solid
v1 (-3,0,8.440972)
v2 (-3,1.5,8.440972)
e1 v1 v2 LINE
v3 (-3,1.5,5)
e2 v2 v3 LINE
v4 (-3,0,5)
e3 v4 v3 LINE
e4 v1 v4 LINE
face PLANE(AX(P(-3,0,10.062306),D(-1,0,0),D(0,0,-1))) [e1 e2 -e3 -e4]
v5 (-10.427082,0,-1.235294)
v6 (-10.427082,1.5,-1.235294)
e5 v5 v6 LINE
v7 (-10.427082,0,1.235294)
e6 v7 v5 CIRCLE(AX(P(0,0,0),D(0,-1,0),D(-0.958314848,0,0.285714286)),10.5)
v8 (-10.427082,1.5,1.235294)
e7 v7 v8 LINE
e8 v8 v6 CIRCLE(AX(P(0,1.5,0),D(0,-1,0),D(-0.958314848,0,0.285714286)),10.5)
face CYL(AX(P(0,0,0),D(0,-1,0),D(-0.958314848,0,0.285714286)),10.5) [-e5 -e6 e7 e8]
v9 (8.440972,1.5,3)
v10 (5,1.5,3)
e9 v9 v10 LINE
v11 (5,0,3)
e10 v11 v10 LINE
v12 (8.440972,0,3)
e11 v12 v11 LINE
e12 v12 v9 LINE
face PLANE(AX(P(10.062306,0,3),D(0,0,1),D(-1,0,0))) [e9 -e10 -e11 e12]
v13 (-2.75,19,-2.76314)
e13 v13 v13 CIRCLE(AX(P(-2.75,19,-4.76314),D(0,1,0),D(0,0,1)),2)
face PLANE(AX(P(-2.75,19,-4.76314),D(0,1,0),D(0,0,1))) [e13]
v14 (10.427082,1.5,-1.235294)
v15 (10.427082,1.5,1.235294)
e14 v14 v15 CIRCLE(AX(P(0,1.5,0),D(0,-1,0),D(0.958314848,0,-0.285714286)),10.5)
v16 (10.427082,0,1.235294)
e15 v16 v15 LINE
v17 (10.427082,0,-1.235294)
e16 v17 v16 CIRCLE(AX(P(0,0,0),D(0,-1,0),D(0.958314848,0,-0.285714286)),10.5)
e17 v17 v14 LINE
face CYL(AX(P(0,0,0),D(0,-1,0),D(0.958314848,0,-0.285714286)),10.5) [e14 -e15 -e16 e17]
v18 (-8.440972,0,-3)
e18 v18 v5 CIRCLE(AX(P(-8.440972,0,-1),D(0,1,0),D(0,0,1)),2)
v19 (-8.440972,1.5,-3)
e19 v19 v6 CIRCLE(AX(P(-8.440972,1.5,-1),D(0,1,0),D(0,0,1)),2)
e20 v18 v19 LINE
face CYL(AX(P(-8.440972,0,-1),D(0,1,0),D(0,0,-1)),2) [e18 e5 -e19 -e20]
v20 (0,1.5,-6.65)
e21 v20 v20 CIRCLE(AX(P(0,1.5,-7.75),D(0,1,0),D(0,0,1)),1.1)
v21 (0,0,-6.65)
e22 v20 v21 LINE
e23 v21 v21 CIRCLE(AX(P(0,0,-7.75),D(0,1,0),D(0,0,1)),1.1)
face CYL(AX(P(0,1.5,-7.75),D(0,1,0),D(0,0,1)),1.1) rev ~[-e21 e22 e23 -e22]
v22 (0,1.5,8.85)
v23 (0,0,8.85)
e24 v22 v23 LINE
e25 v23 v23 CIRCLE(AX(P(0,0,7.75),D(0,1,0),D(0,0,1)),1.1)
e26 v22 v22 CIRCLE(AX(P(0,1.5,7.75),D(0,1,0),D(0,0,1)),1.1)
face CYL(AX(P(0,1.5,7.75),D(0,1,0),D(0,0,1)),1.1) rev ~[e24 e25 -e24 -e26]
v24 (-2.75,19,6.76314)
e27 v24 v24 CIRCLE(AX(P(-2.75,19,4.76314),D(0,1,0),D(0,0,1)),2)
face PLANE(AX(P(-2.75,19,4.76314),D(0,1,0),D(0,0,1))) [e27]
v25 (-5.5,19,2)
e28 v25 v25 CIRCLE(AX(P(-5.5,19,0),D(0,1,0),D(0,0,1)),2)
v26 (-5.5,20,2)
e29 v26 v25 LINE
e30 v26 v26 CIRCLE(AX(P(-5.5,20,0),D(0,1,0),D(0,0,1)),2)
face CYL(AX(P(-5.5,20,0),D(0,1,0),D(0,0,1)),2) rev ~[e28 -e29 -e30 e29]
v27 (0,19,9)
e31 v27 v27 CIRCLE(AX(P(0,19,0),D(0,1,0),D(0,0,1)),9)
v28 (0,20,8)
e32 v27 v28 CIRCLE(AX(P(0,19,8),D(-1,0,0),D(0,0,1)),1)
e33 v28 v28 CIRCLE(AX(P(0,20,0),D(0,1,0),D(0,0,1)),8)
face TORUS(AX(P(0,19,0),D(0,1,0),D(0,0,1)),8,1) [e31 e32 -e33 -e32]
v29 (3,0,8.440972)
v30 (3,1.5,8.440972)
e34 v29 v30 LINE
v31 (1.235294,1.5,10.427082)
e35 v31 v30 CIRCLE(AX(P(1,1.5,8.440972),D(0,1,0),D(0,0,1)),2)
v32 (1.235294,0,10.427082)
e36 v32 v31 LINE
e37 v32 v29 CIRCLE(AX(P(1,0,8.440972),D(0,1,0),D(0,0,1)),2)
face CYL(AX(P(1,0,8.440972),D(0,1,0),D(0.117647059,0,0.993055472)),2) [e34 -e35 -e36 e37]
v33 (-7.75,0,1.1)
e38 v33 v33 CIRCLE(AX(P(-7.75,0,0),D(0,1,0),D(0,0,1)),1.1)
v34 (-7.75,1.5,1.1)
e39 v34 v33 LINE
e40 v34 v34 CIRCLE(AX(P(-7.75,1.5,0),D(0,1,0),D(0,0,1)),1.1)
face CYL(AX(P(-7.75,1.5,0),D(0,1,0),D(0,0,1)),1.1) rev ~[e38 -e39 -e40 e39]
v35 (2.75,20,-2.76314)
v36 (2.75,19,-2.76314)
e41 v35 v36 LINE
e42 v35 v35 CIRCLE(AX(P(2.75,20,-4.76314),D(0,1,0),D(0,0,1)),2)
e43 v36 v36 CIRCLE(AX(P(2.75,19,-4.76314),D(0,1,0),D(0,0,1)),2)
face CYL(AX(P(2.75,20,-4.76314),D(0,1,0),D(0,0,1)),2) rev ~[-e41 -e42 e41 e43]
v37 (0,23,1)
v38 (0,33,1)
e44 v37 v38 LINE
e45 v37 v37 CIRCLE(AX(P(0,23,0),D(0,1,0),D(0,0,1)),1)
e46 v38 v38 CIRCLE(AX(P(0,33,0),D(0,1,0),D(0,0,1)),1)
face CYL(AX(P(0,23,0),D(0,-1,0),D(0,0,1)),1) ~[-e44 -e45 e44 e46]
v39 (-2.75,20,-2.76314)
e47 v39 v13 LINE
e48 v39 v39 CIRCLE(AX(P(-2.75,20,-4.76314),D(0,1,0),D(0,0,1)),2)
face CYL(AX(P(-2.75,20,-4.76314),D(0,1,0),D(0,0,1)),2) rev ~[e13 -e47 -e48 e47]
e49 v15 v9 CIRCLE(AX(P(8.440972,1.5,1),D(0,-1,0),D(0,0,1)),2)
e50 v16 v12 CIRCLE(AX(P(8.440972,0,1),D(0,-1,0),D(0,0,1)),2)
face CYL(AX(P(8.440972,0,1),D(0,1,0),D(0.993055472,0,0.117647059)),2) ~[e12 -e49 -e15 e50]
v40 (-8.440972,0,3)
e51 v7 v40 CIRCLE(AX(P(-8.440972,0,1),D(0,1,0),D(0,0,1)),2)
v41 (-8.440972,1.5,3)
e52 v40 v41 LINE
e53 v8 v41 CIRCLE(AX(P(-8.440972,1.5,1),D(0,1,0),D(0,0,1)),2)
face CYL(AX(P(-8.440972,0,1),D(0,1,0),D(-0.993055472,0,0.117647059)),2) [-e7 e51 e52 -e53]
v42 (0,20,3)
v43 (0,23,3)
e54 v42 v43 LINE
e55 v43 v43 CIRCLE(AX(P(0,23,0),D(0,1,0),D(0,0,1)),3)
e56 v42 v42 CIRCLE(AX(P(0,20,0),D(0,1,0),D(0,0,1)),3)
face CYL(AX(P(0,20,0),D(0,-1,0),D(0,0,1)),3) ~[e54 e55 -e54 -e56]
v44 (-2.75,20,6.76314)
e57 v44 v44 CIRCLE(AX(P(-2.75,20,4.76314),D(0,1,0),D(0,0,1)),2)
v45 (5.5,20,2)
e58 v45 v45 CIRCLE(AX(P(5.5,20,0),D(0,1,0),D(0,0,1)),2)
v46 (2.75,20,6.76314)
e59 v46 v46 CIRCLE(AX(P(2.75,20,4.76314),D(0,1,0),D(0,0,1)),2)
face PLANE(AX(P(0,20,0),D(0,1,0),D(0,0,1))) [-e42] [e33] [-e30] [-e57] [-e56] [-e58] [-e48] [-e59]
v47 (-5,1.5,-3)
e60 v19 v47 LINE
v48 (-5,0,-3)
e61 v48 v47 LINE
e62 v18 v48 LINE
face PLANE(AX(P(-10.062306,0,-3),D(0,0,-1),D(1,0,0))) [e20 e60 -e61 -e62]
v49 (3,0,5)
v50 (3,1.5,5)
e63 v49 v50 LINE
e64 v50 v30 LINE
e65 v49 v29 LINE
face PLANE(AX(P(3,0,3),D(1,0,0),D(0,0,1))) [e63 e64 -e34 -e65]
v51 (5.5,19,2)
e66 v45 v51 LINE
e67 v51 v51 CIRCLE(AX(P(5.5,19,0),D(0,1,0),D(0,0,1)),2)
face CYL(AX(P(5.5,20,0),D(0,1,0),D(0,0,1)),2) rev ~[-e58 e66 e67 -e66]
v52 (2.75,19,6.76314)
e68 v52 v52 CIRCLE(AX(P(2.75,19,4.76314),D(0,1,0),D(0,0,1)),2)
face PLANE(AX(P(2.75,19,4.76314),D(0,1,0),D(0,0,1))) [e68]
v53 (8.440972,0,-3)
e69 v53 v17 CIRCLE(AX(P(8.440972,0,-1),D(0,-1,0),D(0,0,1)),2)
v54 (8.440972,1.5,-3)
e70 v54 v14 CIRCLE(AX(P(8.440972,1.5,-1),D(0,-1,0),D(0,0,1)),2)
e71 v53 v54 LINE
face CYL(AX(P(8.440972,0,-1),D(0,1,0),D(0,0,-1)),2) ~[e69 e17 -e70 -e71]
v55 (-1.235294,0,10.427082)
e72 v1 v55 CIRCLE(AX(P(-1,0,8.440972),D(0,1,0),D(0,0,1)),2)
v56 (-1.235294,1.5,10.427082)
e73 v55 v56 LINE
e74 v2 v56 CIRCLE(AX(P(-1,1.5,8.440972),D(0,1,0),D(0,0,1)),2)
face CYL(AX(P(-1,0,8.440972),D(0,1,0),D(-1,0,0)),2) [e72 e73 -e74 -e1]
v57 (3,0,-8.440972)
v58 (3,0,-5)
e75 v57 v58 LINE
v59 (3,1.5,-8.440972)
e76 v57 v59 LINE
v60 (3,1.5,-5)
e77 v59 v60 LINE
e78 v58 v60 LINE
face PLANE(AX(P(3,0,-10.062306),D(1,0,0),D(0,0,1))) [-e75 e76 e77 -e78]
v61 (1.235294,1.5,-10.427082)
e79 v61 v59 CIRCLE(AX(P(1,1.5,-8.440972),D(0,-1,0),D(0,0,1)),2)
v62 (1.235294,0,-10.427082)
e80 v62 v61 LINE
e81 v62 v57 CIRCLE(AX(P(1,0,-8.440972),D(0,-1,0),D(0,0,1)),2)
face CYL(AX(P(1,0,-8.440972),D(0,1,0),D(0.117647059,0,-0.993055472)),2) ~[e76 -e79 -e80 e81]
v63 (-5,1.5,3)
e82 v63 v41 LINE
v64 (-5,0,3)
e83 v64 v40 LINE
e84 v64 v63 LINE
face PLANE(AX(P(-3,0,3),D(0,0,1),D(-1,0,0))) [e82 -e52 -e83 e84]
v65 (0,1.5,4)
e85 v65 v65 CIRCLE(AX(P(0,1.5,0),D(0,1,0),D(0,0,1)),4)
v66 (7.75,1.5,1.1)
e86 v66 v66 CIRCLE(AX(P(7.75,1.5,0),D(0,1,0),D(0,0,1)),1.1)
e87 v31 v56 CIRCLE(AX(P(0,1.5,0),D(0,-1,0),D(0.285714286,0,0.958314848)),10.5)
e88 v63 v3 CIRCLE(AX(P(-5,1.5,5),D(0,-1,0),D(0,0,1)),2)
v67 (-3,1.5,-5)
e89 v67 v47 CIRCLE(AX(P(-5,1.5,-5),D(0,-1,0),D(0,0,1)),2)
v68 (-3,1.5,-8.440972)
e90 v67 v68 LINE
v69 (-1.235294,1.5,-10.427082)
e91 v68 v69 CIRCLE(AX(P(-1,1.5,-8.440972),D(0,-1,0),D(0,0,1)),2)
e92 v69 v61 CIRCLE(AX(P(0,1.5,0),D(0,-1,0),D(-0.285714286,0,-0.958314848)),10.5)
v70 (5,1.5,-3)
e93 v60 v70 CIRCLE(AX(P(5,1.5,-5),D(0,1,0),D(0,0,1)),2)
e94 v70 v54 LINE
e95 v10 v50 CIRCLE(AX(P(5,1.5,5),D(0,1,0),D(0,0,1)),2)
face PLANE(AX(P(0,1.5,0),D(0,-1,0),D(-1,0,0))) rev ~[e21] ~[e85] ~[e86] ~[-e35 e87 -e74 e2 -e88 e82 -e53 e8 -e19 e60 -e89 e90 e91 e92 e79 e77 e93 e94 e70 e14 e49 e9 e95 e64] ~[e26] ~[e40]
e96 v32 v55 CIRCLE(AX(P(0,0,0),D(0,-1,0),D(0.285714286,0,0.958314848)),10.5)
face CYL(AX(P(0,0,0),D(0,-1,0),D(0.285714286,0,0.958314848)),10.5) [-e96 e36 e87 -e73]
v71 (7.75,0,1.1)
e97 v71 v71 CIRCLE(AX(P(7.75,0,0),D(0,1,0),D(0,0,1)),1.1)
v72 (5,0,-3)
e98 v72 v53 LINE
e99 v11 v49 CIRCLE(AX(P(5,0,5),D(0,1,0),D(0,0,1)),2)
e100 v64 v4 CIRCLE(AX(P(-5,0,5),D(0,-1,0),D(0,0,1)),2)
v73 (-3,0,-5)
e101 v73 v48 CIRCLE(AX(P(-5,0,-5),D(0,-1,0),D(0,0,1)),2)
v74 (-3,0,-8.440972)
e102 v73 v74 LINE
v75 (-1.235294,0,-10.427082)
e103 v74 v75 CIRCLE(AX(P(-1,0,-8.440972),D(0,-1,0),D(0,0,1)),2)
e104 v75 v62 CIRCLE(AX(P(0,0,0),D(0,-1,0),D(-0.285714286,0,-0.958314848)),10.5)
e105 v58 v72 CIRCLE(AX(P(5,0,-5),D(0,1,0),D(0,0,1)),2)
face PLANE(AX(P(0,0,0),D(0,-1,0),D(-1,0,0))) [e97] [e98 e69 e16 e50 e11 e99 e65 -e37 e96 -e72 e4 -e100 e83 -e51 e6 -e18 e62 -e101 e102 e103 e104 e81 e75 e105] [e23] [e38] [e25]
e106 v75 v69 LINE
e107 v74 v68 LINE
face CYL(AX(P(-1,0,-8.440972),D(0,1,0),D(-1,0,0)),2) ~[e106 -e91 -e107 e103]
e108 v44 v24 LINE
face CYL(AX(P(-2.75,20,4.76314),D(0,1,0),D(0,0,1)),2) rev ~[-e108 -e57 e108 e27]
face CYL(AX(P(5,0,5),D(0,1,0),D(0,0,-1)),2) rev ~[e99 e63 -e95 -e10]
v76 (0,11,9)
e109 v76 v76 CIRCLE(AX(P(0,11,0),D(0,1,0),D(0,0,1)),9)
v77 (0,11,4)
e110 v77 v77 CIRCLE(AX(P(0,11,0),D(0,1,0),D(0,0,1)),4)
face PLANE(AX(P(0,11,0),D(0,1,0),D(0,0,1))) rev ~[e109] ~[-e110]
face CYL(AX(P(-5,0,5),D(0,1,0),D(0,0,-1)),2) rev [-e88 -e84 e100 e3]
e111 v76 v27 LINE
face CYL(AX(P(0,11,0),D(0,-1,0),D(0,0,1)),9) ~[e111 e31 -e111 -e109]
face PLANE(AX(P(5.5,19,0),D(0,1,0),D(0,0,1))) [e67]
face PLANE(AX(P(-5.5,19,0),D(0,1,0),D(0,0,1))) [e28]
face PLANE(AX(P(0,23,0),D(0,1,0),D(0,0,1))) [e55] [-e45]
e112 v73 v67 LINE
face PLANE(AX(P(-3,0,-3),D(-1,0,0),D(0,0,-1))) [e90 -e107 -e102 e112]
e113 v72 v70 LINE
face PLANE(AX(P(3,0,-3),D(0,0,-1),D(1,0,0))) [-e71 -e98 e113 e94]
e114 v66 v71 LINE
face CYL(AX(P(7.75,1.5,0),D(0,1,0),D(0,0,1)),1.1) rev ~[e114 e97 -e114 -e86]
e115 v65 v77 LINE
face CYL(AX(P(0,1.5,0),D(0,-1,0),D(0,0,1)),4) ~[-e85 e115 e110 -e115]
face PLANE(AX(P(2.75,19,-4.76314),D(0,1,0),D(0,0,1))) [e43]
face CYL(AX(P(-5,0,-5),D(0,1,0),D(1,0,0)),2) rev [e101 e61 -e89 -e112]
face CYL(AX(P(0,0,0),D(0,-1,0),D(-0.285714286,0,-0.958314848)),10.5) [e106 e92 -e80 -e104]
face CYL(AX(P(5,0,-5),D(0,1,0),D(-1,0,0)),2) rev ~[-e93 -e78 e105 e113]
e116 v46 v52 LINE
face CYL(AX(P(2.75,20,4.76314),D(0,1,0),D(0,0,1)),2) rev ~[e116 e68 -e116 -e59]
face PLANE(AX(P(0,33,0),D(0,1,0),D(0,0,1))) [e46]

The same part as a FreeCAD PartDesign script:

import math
import FreeCAD as App
import Part
import Sketcher
Q = App.Units.Quantity


def edges_at(feature, points):
    """Names of the edges that pass closest to the given points."""
    edges = feature.Shape.Edges
    near = lambda p: min(range(len(edges)), key=lambda i: edges[i].distToShape(Part.Vertex(*p))[0])
    return sorted({f"Edge{near(p) + 1}" for p in points})

doc = App.newDocument("Part")
body = doc.addObject("PartDesign::Body", "Body")

sketch1 = body.newObject("Sketcher::SketchObject", "Sketch")
sketch1.AttachmentSupport = (doc.getObject("XZ_Plane"), [""])
sketch1.MapMode = "FlatFace"
sketch1.addGeometry(Part.LineSegment(App.Vector(-3, -10, 0), App.Vector(-3, -3, 0)), False)
sketch1.addGeometry(Part.LineSegment(App.Vector(-3, -3, 0), App.Vector(-10, -3, 0)), False)
sketch1.addGeometry(Part.ArcOfCircle(Part.Circle(App.Vector(0, 0, 0), App.Vector(0, 0, 1), 11), math.radians(163), math.radians(197)), False)
sketch1.addGeometry(Part.LineSegment(App.Vector(-10, 3, 0), App.Vector(-3, 3, 0)), False)
sketch1.addGeometry(Part.LineSegment(App.Vector(-3, 3, 0), App.Vector(-3, 10, 0)), False)
sketch1.addGeometry(Part.ArcOfCircle(Part.Circle(App.Vector(0, 0, 0), App.Vector(0, 0, 1), 11), math.radians(73), math.radians(107)), False)
sketch1.addGeometry(Part.LineSegment(App.Vector(3, 10, 0), App.Vector(3, 3, 0)), False)
sketch1.addGeometry(Part.LineSegment(App.Vector(3, 3, 0), App.Vector(10, 3, 0)), False)
sketch1.addGeometry(Part.ArcOfCircle(Part.Circle(App.Vector(0, 0, 0), App.Vector(0, 0, 1), 11), math.radians(-17), math.radians(17)), False)
sketch1.addGeometry(Part.LineSegment(App.Vector(10, -3, 0), App.Vector(3, -3, 0)), False)
sketch1.addGeometry(Part.LineSegment(App.Vector(3, -3, 0), App.Vector(3, -10, 0)), False)
sketch1.addGeometry(Part.ArcOfCircle(Part.Circle(App.Vector(0, 0, 0), App.Vector(0, 0, 1), 11), math.radians(-107), math.radians(-73)), False)
sketch1.addConstraint(Sketcher.Constraint("Coincident", 0, 2, 1, 1))
sketch1.addConstraint(Sketcher.Constraint("Coincident", 1, 2, 2, 2))
sketch1.addConstraint(Sketcher.Constraint("Coincident", 2, 1, 3, 1))
sketch1.addConstraint(Sketcher.Constraint("Coincident", 3, 2, 4, 1))
sketch1.addConstraint(Sketcher.Constraint("Coincident", 4, 2, 5, 2))
sketch1.addConstraint(Sketcher.Constraint("Coincident", 5, 1, 6, 1))
sketch1.addConstraint(Sketcher.Constraint("Coincident", 6, 2, 7, 1))
sketch1.addConstraint(Sketcher.Constraint("Coincident", 7, 2, 8, 2))
sketch1.addConstraint(Sketcher.Constraint("Coincident", 8, 1, 9, 1))
sketch1.addConstraint(Sketcher.Constraint("Coincident", 9, 2, 10, 1))
sketch1.addConstraint(Sketcher.Constraint("Coincident", 10, 2, 11, 2))
sketch1.addConstraint(Sketcher.Constraint("Coincident", 11, 1, 0, 1))
sketch1.addConstraint(Sketcher.Constraint("Vertical", 0))
sketch1.addConstraint(Sketcher.Constraint("Horizontal", 1))
sketch1.addConstraint(Sketcher.Constraint("Horizontal", 3))
sketch1.addConstraint(Sketcher.Constraint("Vertical", 4))
sketch1.addConstraint(Sketcher.Constraint("Vertical", 6))
sketch1.addConstraint(Sketcher.Constraint("Horizontal", 7))
sketch1.addConstraint(Sketcher.Constraint("Horizontal", 9))
sketch1.addConstraint(Sketcher.Constraint("Vertical", 10))
sketch1.addConstraint(Sketcher.Constraint("Coincident", 2, 3, -1, 1))
sketch1.addConstraint(Sketcher.Constraint("Coincident", 5, 3, -1, 1))
sketch1.addConstraint(Sketcher.Constraint("Coincident", 8, 3, -1, 1))
sketch1.addConstraint(Sketcher.Constraint("Coincident", 11, 3, -1, 1))
sketch1.addConstraint(Sketcher.Constraint("Equal", 2, 5))
sketch1.addConstraint(Sketcher.Constraint("Equal", 5, 8))
sketch1.addConstraint(Sketcher.Constraint("Equal", 8, 11))
sketch1.addConstraint(Sketcher.Constraint("Symmetric", 0, 2, 6, 2, -1, 1))
sketch1.addConstraint(Sketcher.Constraint("Symmetric", 3, 2, 9, 2, -1, 1))
sketch1.addConstraint(Sketcher.Constraint("Symmetric", 3, 2, 6, 2, -2))
sketch1.addConstraint(Sketcher.Constraint("Equal", 9, 0))
sketch1.addConstraint(Sketcher.Constraint("Radius", 2, Q("10.5 mm")))
sketch1.addConstraint(Sketcher.Constraint("DistanceX", 0, 2, -1, 1, Q("3 mm")))
pad1 = body.newObject("PartDesign::Pad", "Pad")
pad1.Profile = sketch1
pad1.Length = 1.5
pad1.Reversed = True

sketch2 = body.newObject("Sketcher::SketchObject", "Sketch001")
sketch2.AttachmentSupport = (doc.getObject("XZ_Plane"), [""])
sketch2.MapMode = "FlatFace"
sketch2.AttachmentOffset = App.Placement(App.Vector(0, 0, -1.5), App.Rotation())
sketch2.addGeometry(Part.Circle(App.Vector(-7.8, 0, 0), App.Vector(0, 0, 1), 1.1), False)
sketch2.addConstraint(Sketcher.Constraint("PointOnObject", 0, 3, -1))
sketch2.addConstraint(Sketcher.Constraint("Diameter", 0, Q("2.2 mm")))
sketch2.addConstraint(Sketcher.Constraint("DistanceX", 0, 3, -1, 1, Q("7.75 mm")))
pocket1 = body.newObject("PartDesign::Pocket", "Pocket")
pocket1.Profile = sketch2
pocket1.Type = "UpToFirst"
pocket1.Reversed = True

sketch3 = body.newObject("Sketcher::SketchObject", "Sketch002")
sketch3.AttachmentSupport = (doc.getObject("XZ_Plane"), [""])
sketch3.MapMode = "FlatFace"
sketch3.AttachmentOffset = App.Placement(App.Vector(0, 0, -1.5), App.Rotation())
sketch3.addGeometry(Part.Circle(App.Vector(0, -7.8, 0), App.Vector(0, 0, 1), 1.1), False)
sketch3.addConstraint(Sketcher.Constraint("PointOnObject", 0, 3, -2))
sketch3.addConstraint(Sketcher.Constraint("Diameter", 0, Q("2.2 mm")))
sketch3.addConstraint(Sketcher.Constraint("DistanceY", 0, 3, -1, 1, Q("7.75 mm")))
pocket2 = body.newObject("PartDesign::Pocket", "Pocket001")
pocket2.Profile = sketch3
pocket2.Type = "UpToFirst"
pocket2.Reversed = True

sketch4 = body.newObject("Sketcher::SketchObject", "Sketch003")
sketch4.AttachmentSupport = (doc.getObject("XZ_Plane"), [""])
sketch4.MapMode = "FlatFace"
sketch4.AttachmentOffset = App.Placement(App.Vector(0, 0, -1.5), App.Rotation())
sketch4.addGeometry(Part.Circle(App.Vector(7.8, 0, 0), App.Vector(0, 0, 1), 1.1), False)
sketch4.addConstraint(Sketcher.Constraint("PointOnObject", 0, 3, -1))
sketch4.addConstraint(Sketcher.Constraint("Diameter", 0, Q("2.2 mm")))
sketch4.addConstraint(Sketcher.Constraint("DistanceX", -1, 1, 0, 3, Q("7.75 mm")))
pocket3 = body.newObject("PartDesign::Pocket", "Pocket002")
pocket3.Profile = sketch4
pocket3.Type = "UpToFirst"
pocket3.Reversed = True

sketch5 = body.newObject("Sketcher::SketchObject", "Sketch004")
sketch5.AttachmentSupport = (doc.getObject("XZ_Plane"), [""])
sketch5.MapMode = "FlatFace"
sketch5.AttachmentOffset = App.Placement(App.Vector(0, 0, -1.5), App.Rotation())
sketch5.addGeometry(Part.Circle(App.Vector(0, 7.8, 0), App.Vector(0, 0, 1), 1.1), False)
sketch5.addConstraint(Sketcher.Constraint("PointOnObject", 0, 3, -2))
sketch5.addConstraint(Sketcher.Constraint("Diameter", 0, Q("2.2 mm")))
sketch5.addConstraint(Sketcher.Constraint("DistanceY", -1, 1, 0, 3, Q("7.75 mm")))
pocket4 = body.newObject("PartDesign::Pocket", "Pocket003")
pocket4.Profile = sketch5
pocket4.Type = "UpToFirst"
pocket4.Reversed = True
doc.recompute()

fillet = body.newObject("PartDesign::Fillet", "Fillet")
fillet.Base = (pocket4, edges_at(pocket4, [
    (10.062, 0.75, 3),
    (3, 0.75, 3),
    (3, 0.75, 10.062),
    (-3, 0.75, 10.062),
    (-3, 0.75, 3),
    (-10.062, 0.75, 3),
    (-10.062, 0.75, -3),
    (-3, 0.75, -3),
    (-3, 0.75, -10.062),
    (3, 0.75, -10.062),
    (3, 0.75, -3),
    (10.062, 0.75, -3),
]))
fillet.Radius = 2

sketch6 = body.newObject("Sketcher::SketchObject", "Sketch005")
sketch6.AttachmentSupport = (doc.getObject("XZ_Plane"), [""])
sketch6.MapMode = "FlatFace"
sketch6.AttachmentOffset = App.Placement(App.Vector(0, 0, -1.5), App.Rotation())
sketch6.addGeometry(Part.Circle(App.Vector(0, 0, 0), App.Vector(0, 0, 1), 4), False)
sketch6.addConstraint(Sketcher.Constraint("Coincident", 0, 3, -1, 1))
sketch6.addConstraint(Sketcher.Constraint("Diameter", 0, Q("8 mm")))
pad2 = body.newObject("PartDesign::Pad", "Pad001")
pad2.Profile = sketch6
pad2.Length = 9.5
pad2.Reversed = True

sketch7 = body.newObject("Sketcher::SketchObject", "Sketch006")
sketch7.AttachmentSupport = (doc.getObject("XZ_Plane"), [""])
sketch7.MapMode = "FlatFace"
sketch7.AttachmentOffset = App.Placement(App.Vector(0, 0, -11), App.Rotation())
sketch7.addGeometry(Part.Circle(App.Vector(0, 0, 0), App.Vector(0, 0, 1), 9), False)
sketch7.addConstraint(Sketcher.Constraint("Coincident", 0, 3, -1, 1))
sketch7.addConstraint(Sketcher.Constraint("Diameter", 0, Q("18 mm")))
pad3 = body.newObject("PartDesign::Pad", "Pad002")
pad3.Profile = sketch7
pad3.Length = 9
pad3.Reversed = True
doc.recompute()

fillet2 = body.newObject("PartDesign::Fillet", "Fillet001")
fillet2.Base = (pad3, edges_at(pad3, [(0, 20, -9)]))
fillet2.Radius = 1

sketch8 = body.newObject("Sketcher::SketchObject", "Sketch007")
sketch8.AttachmentSupport = (doc.getObject("XZ_Plane"), [""])
sketch8.MapMode = "FlatFace"
sketch8.AttachmentOffset = App.Placement(App.Vector(0, 0, -20), App.Rotation())
sketch8.addGeometry(Part.Circle(App.Vector(0, 0, 0), App.Vector(0, 0, 1), 3), False)
sketch8.addConstraint(Sketcher.Constraint("Coincident", 0, 3, -1, 1))
sketch8.addConstraint(Sketcher.Constraint("Diameter", 0, Q("6 mm")))
pad4 = body.newObject("PartDesign::Pad", "Pad003")
pad4.Profile = sketch8
pad4.Length = 3
pad4.Reversed = True

sketch9 = body.newObject("Sketcher::SketchObject", "Sketch008")
sketch9.AttachmentSupport = (doc.getObject("XZ_Plane"), [""])
sketch9.MapMode = "FlatFace"
sketch9.AttachmentOffset = App.Placement(App.Vector(0, 0, -23), App.Rotation())
sketch9.addGeometry(Part.Circle(App.Vector(0, 0, 0), App.Vector(0, 0, 1), 1), False)
sketch9.addConstraint(Sketcher.Constraint("Coincident", 0, 3, -1, 1))
sketch9.addConstraint(Sketcher.Constraint("Diameter", 0, Q("2 mm")))
pad5 = body.newObject("PartDesign::Pad", "Pad004")
pad5.Profile = sketch9
pad5.Length = 10
pad5.Reversed = True

sketch10 = body.newObject("Sketcher::SketchObject", "Sketch009")
sketch10.AttachmentSupport = (doc.getObject("XZ_Plane"), [""])
sketch10.MapMode = "FlatFace"
sketch10.AttachmentOffset = App.Placement(App.Vector(0, 0, -20), App.Rotation())
sketch10.addGeometry(Part.Circle(App.Vector(-5.5, 0, 0), App.Vector(0, 0, 1), 2), False)
sketch10.addGeometry(Part.Circle(App.Vector(-2.8, -4.8, 0), App.Vector(0, 0, 1), 2), False)
sketch10.addGeometry(Part.Circle(App.Vector(2.8, -4.8, 0), App.Vector(0, 0, 1), 2), False)
sketch10.addGeometry(Part.Circle(App.Vector(5.5, 0, 0), App.Vector(0, 0, 1), 2), False)
sketch10.addGeometry(Part.Circle(App.Vector(2.8, 4.8, 0), App.Vector(0, 0, 1), 2), False)
sketch10.addGeometry(Part.Circle(App.Vector(-2.8, 4.8, 0), App.Vector(0, 0, 1), 2), False)
sketch10.addConstraint(Sketcher.Constraint("Equal", 0, 1))
sketch10.addConstraint(Sketcher.Constraint("Equal", 1, 2))
sketch10.addConstraint(Sketcher.Constraint("Equal", 2, 3))
sketch10.addConstraint(Sketcher.Constraint("Equal", 3, 4))
sketch10.addConstraint(Sketcher.Constraint("Equal", 4, 5))
sketch10.addConstraint(Sketcher.Constraint("Symmetric", 0, 3, 3, 3, -1, 1))
sketch10.addConstraint(Sketcher.Constraint("Symmetric", 1, 3, 4, 3, -1, 1))
sketch10.addConstraint(Sketcher.Constraint("Symmetric", 2, 3, 5, 3, -1, 1))
sketch10.addConstraint(Sketcher.Constraint("Symmetric", 1, 3, 2, 3, -2))
sketch10.addConstraint(Sketcher.Constraint("PointOnObject", 0, 3, -1))
sketch10.addConstraint(Sketcher.Constraint("Diameter", 0, Q("4 mm")))
sketch10.addConstraint(Sketcher.Constraint("DistanceX", 0, 3, 3, 3, Q("11 mm")))
sketch10.addConstraint(Sketcher.Constraint("DistanceX", 1, 3, 2, 3, Q("5.5 mm")))
sketch10.addConstraint(Sketcher.Constraint("DistanceY", 1, 3, -1, 1, Q("4.76314 mm")))
pocket5 = body.newObject("PartDesign::Pocket", "Pocket004")
pocket5.Profile = sketch10
pocket5.Length = 1
pocket5.Reversed = True

doc.recompute()
